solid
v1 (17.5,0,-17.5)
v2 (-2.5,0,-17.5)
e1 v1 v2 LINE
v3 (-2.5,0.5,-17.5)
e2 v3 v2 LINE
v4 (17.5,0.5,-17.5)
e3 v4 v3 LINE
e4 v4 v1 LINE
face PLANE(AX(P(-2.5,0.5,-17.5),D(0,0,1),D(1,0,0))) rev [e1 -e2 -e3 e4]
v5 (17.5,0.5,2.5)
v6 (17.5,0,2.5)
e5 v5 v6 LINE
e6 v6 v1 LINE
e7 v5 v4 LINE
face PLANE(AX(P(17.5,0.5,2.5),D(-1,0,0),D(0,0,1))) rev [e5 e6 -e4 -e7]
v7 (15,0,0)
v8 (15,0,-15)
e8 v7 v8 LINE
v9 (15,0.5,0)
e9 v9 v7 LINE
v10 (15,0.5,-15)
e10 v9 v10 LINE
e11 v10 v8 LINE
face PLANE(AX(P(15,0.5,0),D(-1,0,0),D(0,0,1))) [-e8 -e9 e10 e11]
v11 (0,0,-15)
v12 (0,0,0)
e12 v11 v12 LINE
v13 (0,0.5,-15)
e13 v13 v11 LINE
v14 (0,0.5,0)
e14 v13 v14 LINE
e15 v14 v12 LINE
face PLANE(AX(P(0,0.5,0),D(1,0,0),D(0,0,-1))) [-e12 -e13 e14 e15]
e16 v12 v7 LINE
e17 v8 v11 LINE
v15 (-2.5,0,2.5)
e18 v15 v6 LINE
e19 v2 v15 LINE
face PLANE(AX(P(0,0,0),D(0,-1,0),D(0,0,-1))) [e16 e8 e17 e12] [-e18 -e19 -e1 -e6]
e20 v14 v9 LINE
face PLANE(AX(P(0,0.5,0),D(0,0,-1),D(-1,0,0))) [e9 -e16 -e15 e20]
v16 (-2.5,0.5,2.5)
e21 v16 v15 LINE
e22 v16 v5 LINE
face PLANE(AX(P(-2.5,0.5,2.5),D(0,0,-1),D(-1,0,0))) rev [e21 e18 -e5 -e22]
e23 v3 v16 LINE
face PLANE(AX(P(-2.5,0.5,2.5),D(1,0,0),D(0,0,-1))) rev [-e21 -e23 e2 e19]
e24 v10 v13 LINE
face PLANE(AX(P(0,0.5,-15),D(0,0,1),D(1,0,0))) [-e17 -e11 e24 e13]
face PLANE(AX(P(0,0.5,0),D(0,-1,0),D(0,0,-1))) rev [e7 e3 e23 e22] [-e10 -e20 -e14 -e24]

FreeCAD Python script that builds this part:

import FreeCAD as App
import Part
import Sketcher


def add_polygon(sketch, points):
    """Adds a closed chain of lines whose ends are joined by coincident constraints."""
    first, n = sketch.GeometryCount, len(points)
    for a, b in zip(points, points[1:] + points[:1]):
        sketch.addGeometry(Part.LineSegment(App.Vector(*a, 0), App.Vector(*b, 0)), False)
    for i in range(n):
        sketch.addConstraint(Sketcher.Constraint("Coincident", first + i, 2, first + (i + 1) % n, 1))

doc = App.newDocument("Part")
body = doc.addObject("PartDesign::Body", "Body")

sketch1 = doc.addObject("Sketcher::SketchObject", "Sketch")
body.addObject(sketch1)
sketch1.AttachmentSupport = (doc.XZ_Plane, [""])
sketch1.MapMode = "FlatFace"
add_polygon(sketch1, [(-2.5, -17.5), (-2.5, 2.5), (17.5, 2.5), (17.5, -17.5)])
add_polygon(sketch1, [(15, 0), (0, 0), (0, -15), (15, -15)])
sketch1.addConstraint(Sketcher.Constraint("Vertical", 0))
sketch1.addConstraint(Sketcher.Constraint("Horizontal", 1))
sketch1.addConstraint(Sketcher.Constraint("Vertical", 2))
sketch1.addConstraint(Sketcher.Constraint("Horizontal", 3))
sketch1.addConstraint(Sketcher.Constraint("Horizontal", 4))
sketch1.addConstraint(Sketcher.Constraint("Vertical", 5))
sketch1.addConstraint(Sketcher.Constraint("Horizontal", 6))
sketch1.addConstraint(Sketcher.Constraint("Vertical", 7))
sketch1.addConstraint(Sketcher.Constraint("Coincident", 4, 2, -1, 1))
sketch1.addConstraint(Sketcher.Constraint("Equal", 3, 0))
sketch1.addConstraint(Sketcher.Constraint("Equal", 6, 5))
sketch1.addConstraint(Sketcher.Constraint("DistanceX", 1, 1, 1, 2, 20.0))
sketch1.addConstraint(Sketcher.Constraint("DistanceX", 4, 2, 4, 1, 15.0))
sketch1.addConstraint(Sketcher.Constraint("DistanceX", 0, 2, -1, 1, 2.5))
sketch1.addConstraint(Sketcher.Constraint("DistanceY", -1, 1, 0, 2, 2.5))
pad1 = doc.addObject("PartDesign::Pad", "Pad")
body.addObject(pad1)
pad1.Profile = sketch1
pad1.Length = 0.5
pad1.Reversed = True

doc.recompute()
